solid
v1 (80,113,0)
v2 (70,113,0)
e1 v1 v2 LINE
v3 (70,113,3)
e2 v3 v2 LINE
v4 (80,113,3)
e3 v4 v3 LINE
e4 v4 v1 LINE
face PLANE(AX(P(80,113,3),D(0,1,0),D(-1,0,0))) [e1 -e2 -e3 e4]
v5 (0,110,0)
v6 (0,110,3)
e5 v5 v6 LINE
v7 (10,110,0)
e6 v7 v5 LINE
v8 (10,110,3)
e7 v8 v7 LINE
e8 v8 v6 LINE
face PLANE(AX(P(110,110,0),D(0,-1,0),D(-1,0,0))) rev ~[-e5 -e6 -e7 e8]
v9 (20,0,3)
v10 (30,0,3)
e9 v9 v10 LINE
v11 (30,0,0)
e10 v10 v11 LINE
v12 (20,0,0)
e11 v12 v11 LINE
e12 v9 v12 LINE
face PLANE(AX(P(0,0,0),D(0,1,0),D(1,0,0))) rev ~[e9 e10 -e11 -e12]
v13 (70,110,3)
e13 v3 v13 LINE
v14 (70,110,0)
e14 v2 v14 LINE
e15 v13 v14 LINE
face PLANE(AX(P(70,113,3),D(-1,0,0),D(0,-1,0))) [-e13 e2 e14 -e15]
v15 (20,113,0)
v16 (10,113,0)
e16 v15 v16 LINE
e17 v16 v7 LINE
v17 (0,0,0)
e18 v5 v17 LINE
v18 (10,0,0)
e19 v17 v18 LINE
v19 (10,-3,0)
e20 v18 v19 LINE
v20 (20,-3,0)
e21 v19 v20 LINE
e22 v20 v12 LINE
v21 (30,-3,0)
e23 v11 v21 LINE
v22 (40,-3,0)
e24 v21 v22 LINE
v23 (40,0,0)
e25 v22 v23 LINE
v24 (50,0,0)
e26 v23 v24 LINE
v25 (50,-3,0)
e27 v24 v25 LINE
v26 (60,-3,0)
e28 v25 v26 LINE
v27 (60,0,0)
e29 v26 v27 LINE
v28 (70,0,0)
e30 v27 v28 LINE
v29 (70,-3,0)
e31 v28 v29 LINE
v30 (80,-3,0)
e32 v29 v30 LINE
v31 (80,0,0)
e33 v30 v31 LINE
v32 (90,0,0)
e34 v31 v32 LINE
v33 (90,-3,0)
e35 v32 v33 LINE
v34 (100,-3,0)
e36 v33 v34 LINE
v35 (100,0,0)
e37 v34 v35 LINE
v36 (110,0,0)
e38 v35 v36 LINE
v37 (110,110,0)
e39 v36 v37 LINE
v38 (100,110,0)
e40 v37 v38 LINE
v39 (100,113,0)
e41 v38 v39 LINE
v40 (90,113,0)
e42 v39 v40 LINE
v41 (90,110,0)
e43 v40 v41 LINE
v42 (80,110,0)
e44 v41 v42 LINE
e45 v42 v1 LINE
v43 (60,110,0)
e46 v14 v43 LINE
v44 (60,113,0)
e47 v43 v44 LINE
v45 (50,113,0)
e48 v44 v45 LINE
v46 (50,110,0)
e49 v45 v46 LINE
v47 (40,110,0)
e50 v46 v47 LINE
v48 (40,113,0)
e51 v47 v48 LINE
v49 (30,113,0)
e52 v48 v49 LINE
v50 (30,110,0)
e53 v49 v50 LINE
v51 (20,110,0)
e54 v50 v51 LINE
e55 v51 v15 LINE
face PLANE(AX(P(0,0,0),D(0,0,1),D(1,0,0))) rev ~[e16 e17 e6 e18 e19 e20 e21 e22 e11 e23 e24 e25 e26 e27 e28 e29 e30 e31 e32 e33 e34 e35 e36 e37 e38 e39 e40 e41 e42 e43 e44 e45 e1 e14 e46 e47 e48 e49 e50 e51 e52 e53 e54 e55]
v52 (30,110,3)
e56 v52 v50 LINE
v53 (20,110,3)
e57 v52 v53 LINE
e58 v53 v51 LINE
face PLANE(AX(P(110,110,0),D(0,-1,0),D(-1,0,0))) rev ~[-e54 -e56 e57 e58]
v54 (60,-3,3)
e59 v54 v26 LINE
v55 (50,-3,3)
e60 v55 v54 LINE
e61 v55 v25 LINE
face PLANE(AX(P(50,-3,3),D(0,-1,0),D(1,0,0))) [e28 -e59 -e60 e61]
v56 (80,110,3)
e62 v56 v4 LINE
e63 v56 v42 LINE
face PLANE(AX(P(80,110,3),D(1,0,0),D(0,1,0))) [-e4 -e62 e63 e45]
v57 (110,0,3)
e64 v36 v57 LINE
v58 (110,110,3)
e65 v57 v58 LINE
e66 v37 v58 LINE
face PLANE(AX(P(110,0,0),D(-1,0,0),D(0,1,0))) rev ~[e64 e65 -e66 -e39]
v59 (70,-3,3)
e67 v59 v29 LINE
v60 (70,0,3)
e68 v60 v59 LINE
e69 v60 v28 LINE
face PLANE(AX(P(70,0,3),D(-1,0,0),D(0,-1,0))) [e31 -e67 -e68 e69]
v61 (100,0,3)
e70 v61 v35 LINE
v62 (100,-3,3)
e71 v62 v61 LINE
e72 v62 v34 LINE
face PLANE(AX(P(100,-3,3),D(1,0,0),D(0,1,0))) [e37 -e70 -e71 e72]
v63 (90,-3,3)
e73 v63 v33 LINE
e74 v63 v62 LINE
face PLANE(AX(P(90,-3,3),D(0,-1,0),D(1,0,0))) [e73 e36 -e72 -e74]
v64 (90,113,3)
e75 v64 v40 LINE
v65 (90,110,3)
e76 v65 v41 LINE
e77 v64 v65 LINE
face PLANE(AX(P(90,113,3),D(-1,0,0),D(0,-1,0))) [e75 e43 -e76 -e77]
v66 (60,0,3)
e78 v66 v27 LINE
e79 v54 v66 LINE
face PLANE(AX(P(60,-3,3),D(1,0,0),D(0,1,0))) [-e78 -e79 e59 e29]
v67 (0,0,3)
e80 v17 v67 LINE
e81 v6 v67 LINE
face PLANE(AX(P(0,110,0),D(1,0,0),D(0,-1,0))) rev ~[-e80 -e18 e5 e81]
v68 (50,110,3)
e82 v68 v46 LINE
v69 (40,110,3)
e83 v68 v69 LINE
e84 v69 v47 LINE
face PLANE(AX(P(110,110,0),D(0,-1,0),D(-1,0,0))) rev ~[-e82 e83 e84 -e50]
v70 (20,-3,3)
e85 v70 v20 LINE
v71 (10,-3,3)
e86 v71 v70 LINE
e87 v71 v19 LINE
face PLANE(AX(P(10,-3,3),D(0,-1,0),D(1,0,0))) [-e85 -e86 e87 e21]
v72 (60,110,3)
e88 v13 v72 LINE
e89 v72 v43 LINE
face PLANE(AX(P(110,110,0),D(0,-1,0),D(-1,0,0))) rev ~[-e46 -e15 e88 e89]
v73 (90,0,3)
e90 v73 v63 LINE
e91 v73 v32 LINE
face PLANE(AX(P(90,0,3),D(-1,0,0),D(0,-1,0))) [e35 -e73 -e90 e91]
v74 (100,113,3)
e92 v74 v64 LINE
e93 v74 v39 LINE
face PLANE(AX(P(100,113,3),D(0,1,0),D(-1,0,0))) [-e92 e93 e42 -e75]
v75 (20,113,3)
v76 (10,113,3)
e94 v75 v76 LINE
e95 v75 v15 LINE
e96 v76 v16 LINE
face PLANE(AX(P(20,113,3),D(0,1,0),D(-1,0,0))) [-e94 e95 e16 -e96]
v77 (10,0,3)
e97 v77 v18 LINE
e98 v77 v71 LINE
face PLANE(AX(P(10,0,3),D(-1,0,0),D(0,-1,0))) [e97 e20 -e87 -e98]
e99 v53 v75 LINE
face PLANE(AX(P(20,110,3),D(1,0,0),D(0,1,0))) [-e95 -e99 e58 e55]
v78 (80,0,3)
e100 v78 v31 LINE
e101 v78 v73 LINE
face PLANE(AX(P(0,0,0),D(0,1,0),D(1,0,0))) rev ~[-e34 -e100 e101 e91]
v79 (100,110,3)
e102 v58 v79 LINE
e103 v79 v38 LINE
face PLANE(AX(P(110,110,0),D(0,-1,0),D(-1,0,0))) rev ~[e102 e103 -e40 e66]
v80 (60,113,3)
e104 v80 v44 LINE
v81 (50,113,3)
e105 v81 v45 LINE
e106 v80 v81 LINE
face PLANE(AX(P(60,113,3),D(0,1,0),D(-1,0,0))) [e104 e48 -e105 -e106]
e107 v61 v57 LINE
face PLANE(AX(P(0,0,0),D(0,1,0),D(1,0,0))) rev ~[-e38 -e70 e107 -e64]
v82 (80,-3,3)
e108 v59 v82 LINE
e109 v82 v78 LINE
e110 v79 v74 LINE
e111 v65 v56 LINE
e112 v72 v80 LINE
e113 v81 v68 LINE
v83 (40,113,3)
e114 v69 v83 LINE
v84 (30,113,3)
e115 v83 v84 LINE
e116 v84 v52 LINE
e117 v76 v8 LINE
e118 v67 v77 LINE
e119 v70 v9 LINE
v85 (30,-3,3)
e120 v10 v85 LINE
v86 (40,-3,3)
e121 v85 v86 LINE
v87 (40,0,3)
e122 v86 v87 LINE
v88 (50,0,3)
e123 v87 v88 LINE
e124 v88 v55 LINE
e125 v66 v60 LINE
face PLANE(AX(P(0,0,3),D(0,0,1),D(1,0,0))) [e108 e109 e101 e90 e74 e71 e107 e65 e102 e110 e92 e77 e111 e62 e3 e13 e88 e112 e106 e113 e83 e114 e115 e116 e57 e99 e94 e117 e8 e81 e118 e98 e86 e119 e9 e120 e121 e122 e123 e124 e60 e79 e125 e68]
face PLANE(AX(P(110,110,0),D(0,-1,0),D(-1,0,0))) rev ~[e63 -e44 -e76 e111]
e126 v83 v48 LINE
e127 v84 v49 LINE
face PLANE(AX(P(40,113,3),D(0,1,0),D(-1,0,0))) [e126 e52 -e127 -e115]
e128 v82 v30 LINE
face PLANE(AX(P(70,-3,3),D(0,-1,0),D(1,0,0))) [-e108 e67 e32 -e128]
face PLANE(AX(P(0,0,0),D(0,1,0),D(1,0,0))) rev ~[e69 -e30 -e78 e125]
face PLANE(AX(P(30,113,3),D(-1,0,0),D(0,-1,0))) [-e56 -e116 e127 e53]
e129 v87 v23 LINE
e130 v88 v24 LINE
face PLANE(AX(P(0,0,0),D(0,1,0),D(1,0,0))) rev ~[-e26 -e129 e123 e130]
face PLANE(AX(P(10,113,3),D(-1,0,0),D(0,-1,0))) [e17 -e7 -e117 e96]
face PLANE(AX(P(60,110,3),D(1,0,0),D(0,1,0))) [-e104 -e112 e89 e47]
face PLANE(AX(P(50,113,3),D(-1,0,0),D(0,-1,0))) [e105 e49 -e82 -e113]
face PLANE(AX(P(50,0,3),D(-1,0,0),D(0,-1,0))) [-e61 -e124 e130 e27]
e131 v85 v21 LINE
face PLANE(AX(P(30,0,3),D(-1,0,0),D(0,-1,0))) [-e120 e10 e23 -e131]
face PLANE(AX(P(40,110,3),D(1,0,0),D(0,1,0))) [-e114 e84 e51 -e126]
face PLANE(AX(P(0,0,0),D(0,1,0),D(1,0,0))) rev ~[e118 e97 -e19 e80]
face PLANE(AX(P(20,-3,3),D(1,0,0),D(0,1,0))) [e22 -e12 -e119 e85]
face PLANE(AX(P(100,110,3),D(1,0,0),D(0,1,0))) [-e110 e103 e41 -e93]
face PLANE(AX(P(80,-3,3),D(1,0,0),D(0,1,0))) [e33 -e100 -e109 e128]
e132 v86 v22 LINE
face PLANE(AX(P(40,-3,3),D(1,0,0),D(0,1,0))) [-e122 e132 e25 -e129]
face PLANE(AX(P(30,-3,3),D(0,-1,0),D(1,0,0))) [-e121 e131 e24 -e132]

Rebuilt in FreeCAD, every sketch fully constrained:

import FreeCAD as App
import Part
import Sketcher
from FreeCAD import Vector
Q = App.Units.Quantity


def add_polygon(sketch, points):
    """Adds a closed chain of lines whose ends are joined by coincident constraints."""
    first, n = sketch.GeometryCount, len(points)
    for a, b in zip(points, points[1:] + points[:1]):
        sketch.addGeometry(Part.LineSegment(App.Vector(*a, 0), App.Vector(*b, 0)), False)
    for i in range(n):
        sketch.addConstraint(Sketcher.Constraint("Coincident", first + i, 2, first + (i + 1) % n, 1))

doc = App.newDocument("Part")
body = doc.addObject("PartDesign::Body", "Body")

# Sketch on XY plane
sketch1 = body.newObject("Sketcher::SketchObject", "Sketch")
sketch1.AttachmentSupport = (doc.getObject("XY_Plane"), [""])
sketch1.MapMode = "FlatFace"
add_polygon(sketch1, [(0, 110), (0, 0), (110, 0), (110, 110)])  # lines 0-3
sketch1.addConstraint([
    Sketcher.Constraint("Vertical", 0),
    Sketcher.Constraint("Horizontal", 1),
    Sketcher.Constraint("Vertical", 2),
    Sketcher.Constraint("Horizontal", 3),
    Sketcher.Constraint("Coincident", 0, 2, -1, 1),
    Sketcher.Constraint("Equal", 3, 0),
    Sketcher.Constraint("DistanceX", 1, 1, 1, 2, Q("110 mm")),
])
pad1 = body.newObject("PartDesign::Pad", "Pad")
pad1.Profile = sketch1
pad1.Length = 3

# Sketch on XY plane
sketch2 = body.newObject("Sketcher::SketchObject", "Sketch001")
sketch2.AttachmentSupport = (doc.getObject("XY_Plane"), [""])
sketch2.MapMode = "FlatFace"
sketch2.AttachmentOffset = App.Placement(Vector(0, 0, 3), App.Rotation())
add_polygon(sketch2, [(10, 110), (20, 110), (20, 113), (10, 113)])  # lines 0-3
add_polygon(sketch2, [(30, 110), (40, 110), (40, 113), (30, 113)])  # lines 4-7
add_polygon(sketch2, [(50, 110), (60, 110), (60, 113), (50, 113)])  # lines 8-11
add_polygon(sketch2, [(70, 110), (80, 110), (80, 113), (70, 113)])  # lines 12-15
add_polygon(sketch2, [(90, 110), (100, 110), (100, 113), (90, 113)])  # lines 16-19
add_polygon(sketch2, [(10, 0), (10, -3), (20, -3), (20, 0)])  # lines 20-23
add_polygon(sketch2, [(30, 0), (30, -3), (40, -3), (40, 0)])  # lines 24-27
add_polygon(sketch2, [(50, 0), (50, -3), (60, -3), (60, 0)])  # lines 28-31
add_polygon(sketch2, [(70, 0), (70, -3), (80, -3), (80, 0)])  # lines 32-35
add_polygon(sketch2, [(90, 0), (90, -3), (100, -3), (100, 0)])  # lines 36-39
sketch2.addConstraint([
    Sketcher.Constraint("Horizontal", 0),
    Sketcher.Constraint("Vertical", 1),
    Sketcher.Constraint("Horizontal", 2),
    Sketcher.Constraint("Vertical", 3),
    Sketcher.Constraint("Horizontal", 4),
    Sketcher.Constraint("Vertical", 5),
    Sketcher.Constraint("Horizontal", 6),
    Sketcher.Constraint("Vertical", 7),
    Sketcher.Constraint("Horizontal", 8),
    Sketcher.Constraint("Vertical", 9),
    Sketcher.Constraint("Horizontal", 10),
    Sketcher.Constraint("Vertical", 11),
    Sketcher.Constraint("Horizontal", 12),
    Sketcher.Constraint("Vertical", 13),
    Sketcher.Constraint("Horizontal", 14),
    Sketcher.Constraint("Vertical", 15),
    Sketcher.Constraint("Horizontal", 16),
    Sketcher.Constraint("Vertical", 17),
    Sketcher.Constraint("Horizontal", 18),
    Sketcher.Constraint("Vertical", 19),
    Sketcher.Constraint("Vertical", 20),
    Sketcher.Constraint("Horizontal", 21),
    Sketcher.Constraint("Vertical", 22),
    Sketcher.Constraint("Horizontal", 23),
    Sketcher.Constraint("Vertical", 24),
    Sketcher.Constraint("Horizontal", 25),
    Sketcher.Constraint("Vertical", 26),
    Sketcher.Constraint("Horizontal", 27),
    Sketcher.Constraint("Vertical", 28),
    Sketcher.Constraint("Horizontal", 29),
    Sketcher.Constraint("Vertical", 30),
    Sketcher.Constraint("Horizontal", 31),
    Sketcher.Constraint("Vertical", 32),
    Sketcher.Constraint("Horizontal", 33),
    Sketcher.Constraint("Vertical", 34),
    Sketcher.Constraint("Horizontal", 35),
    Sketcher.Constraint("Vertical", 36),
    Sketcher.Constraint("Horizontal", 37),
    Sketcher.Constraint("Vertical", 38),
    Sketcher.Constraint("Horizontal", 39),
    Sketcher.Constraint("PointOnObject", 22, 2, -1),
    Sketcher.Constraint("PointOnObject", 26, 2, -1),
    Sketcher.Constraint("PointOnObject", 30, 2, -1),
    Sketcher.Constraint("PointOnObject", 34, 2, -1),
    Sketcher.Constraint("PointOnObject", 38, 2, -1),
    Sketcher.Constraint("Horizontal", 3, 2, 4, 2),
    Sketcher.Constraint("Horizontal", 2, 2, 5, 2),
    Sketcher.Constraint("Horizontal", 7, 2, 8, 2),
    Sketcher.Constraint("Horizontal", 6, 2, 9, 2),
    Sketcher.Constraint("Horizontal", 11, 2, 12, 2),
    Sketcher.Constraint("Horizontal", 10, 2, 13, 2),
    Sketcher.Constraint("Horizontal", 15, 2, 16, 2),
    Sketcher.Constraint("Horizontal", 14, 2, 17, 2),
    Sketcher.Constraint("Horizontal", 21, 2, 24, 2),
    Sketcher.Constraint("Horizontal", 25, 2, 28, 2),
    Sketcher.Constraint("Horizontal", 29, 2, 32, 2),
    Sketcher.Constraint("Horizontal", 33, 2, 36, 2),
    Sketcher.Constraint("Vertical", 3, 2, 20, 2),
    Sketcher.Constraint("Vertical", 1, 2, 21, 2),
    Sketcher.Constraint("Vertical", 7, 2, 24, 2),
    Sketcher.Constraint("Vertical", 5, 2, 25, 2),
    Sketcher.Constraint("Vertical", 11, 2, 28, 2),
    Sketcher.Constraint("Vertical", 9, 2, 29, 2),
    Sketcher.Constraint("Vertical", 15, 2, 32, 2),
    Sketcher.Constraint("Vertical", 13, 2, 33, 2),
    Sketcher.Constraint("Vertical", 19, 2, 36, 2),
    Sketcher.Constraint("Vertical", 17, 2, 37, 2),
    Sketcher.Constraint("Equal", 2, 4),
    Sketcher.Constraint("Equal", 6, 8),
    Sketcher.Constraint("Equal", 10, 12),
    Sketcher.Constraint("Equal", 14, 16),
    Sketcher.Constraint("Equal", 19, 20),
    Sketcher.Constraint("DistanceX", 0, 1, 0, 2, Q("10 mm")),
    Sketcher.Constraint("DistanceY", 1, 1, 1, 2, Q("3 mm")),
    Sketcher.Constraint("DistanceX", -1, 1, 0, 2, Q("20 mm")),
    Sketcher.Constraint("DistanceY", -1, 1, 1, 2, Q("113 mm")),
    Sketcher.Constraint("DistanceX", 0, 2, 4, 2, Q("20 mm")),
    Sketcher.Constraint("DistanceX", 4, 2, 8, 2, Q("20 mm")),
    Sketcher.Constraint("DistanceX", 8, 2, 12, 2, Q("20 mm")),
    Sketcher.Constraint("DistanceX", 12, 2, 16, 2, Q("20 mm")),
])
pad2 = body.newObject("PartDesign::Pad", "Pad001")
pad2.Profile = sketch2
pad2.Length = 3
pad2.Reversed = True

doc.recompute()
